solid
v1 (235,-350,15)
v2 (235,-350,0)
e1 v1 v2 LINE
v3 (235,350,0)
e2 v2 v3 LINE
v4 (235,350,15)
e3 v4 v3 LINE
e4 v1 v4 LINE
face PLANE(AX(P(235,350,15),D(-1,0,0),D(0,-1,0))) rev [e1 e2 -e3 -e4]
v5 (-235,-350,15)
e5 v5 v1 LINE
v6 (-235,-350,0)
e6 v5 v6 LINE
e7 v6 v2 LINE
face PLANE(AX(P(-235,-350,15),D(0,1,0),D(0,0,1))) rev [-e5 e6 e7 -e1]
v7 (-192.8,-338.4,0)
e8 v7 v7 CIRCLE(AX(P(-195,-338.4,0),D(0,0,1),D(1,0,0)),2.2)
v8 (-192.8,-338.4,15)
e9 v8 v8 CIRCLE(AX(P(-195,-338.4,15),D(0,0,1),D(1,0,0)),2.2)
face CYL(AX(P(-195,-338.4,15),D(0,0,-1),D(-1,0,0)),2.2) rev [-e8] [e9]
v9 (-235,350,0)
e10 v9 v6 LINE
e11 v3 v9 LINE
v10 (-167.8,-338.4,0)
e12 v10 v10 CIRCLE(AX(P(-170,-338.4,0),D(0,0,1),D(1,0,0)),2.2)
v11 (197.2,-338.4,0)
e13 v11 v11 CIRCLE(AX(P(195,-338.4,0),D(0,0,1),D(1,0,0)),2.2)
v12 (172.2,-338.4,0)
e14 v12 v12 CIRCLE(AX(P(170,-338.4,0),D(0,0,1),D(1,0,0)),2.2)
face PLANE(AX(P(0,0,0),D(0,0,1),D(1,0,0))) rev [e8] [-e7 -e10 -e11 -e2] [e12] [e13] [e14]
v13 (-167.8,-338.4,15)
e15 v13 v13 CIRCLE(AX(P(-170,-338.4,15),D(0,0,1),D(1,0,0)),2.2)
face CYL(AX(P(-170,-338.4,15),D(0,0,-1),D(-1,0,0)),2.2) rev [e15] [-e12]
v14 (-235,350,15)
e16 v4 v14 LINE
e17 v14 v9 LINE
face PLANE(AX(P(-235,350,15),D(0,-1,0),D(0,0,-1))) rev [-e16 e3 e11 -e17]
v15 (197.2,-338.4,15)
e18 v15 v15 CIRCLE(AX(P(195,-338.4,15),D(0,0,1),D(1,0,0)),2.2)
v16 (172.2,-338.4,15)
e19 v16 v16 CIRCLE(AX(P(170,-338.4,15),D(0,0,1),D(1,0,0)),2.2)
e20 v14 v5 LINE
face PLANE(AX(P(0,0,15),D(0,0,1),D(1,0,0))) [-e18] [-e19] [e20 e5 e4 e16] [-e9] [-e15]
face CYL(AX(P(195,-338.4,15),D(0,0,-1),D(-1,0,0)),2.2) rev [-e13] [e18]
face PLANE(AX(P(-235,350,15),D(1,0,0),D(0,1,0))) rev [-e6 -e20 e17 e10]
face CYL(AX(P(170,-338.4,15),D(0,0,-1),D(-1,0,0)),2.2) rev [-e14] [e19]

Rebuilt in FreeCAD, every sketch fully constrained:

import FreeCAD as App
import Part
import Sketcher
from FreeCAD import Vector
Q = App.Units.Quantity


def add_polygon(sketch, points):
    """Adds a closed chain of lines whose ends are joined by coincident constraints."""
    first, n = sketch.GeometryCount, len(points)
    for a, b in zip(points, points[1:] + points[:1]):
        sketch.addGeometry(Part.LineSegment(App.Vector(*a, 0), App.Vector(*b, 0)), False)
    for i in range(n):
        sketch.addConstraint(Sketcher.Constraint("Coincident", first + i, 2, first + (i + 1) % n, 1))

doc = App.newDocument("Part")
body = doc.addObject("PartDesign::Body", "Body")

# Sketch on XY plane
sketch1 = body.newObject("Sketcher::SketchObject", "Sketch")
sketch1.AttachmentSupport = (doc.getObject("XY_Plane"), [""])
sketch1.MapMode = "FlatFace"
add_polygon(sketch1, [(-235, 350), (-235, -350), (235, -350), (235, 350)])  # lines 0-3
sketch1.addGeometry(Part.Circle(Vector(-195, -338.4, 0), Vector(0, 0, 1), 2.2), False)  # 4
sketch1.addGeometry(Part.Circle(Vector(-170, -338.4, 0), Vector(0, 0, 1), 2.2), False)  # 5
sketch1.addGeometry(Part.Circle(Vector(170, -338.4, 0), Vector(0, 0, 1), 2.2), False)  # 6
sketch1.addGeometry(Part.Circle(Vector(195, -338.4, 0), Vector(0, 0, 1), 2.2), False)  # 7
sketch1.addConstraint(Sketcher.Constraint("Vertical", 0))
sketch1.addConstraint(Sketcher.Constraint("Horizontal", 1))
sketch1.addConstraint(Sketcher.Constraint("Vertical", 2))
sketch1.addConstraint(Sketcher.Constraint("Horizontal", 3))
sketch1.addConstraint(Sketcher.Constraint("Equal", 4, 5))
sketch1.addConstraint(Sketcher.Constraint("Equal", 5, 6))
sketch1.addConstraint(Sketcher.Constraint("Equal", 6, 7))
sketch1.addConstraint(Sketcher.Constraint("Symmetric", 0, 2, 2, 2, -1, 1))
sketch1.addConstraint(Sketcher.Constraint("Symmetric", 5, 3, 6, 3, -2))
sketch1.addConstraint(Sketcher.Constraint("Symmetric", 4, 3, 7, 3, -2))
sketch1.addConstraint(Sketcher.Constraint("Horizontal", 4, 3, 5, 3))
sketch1.addConstraint(Sketcher.Constraint("Diameter", 4, Q("4.4 mm")))
sketch1.addConstraint(Sketcher.Constraint("DistanceX", 1, 1, 1, 2, Q("470 mm")))
sketch1.addConstraint(Sketcher.Constraint("DistanceY", 0, 2, 0, 1, Q("700 mm")))
sketch1.addConstraint(Sketcher.Constraint("DistanceX", 4, 3, -1, 1, Q("195 mm")))
sketch1.addConstraint(Sketcher.Constraint("DistanceX", 5, 3, -1, 1, Q("170 mm")))
sketch1.addConstraint(Sketcher.Constraint("DistanceY", 4, 3, -1, 1, Q("338.4 mm")))
pad1 = body.newObject("PartDesign::Pad", "Pad")
pad1.Profile = sketch1
pad1.Length = 15

doc.recompute()
